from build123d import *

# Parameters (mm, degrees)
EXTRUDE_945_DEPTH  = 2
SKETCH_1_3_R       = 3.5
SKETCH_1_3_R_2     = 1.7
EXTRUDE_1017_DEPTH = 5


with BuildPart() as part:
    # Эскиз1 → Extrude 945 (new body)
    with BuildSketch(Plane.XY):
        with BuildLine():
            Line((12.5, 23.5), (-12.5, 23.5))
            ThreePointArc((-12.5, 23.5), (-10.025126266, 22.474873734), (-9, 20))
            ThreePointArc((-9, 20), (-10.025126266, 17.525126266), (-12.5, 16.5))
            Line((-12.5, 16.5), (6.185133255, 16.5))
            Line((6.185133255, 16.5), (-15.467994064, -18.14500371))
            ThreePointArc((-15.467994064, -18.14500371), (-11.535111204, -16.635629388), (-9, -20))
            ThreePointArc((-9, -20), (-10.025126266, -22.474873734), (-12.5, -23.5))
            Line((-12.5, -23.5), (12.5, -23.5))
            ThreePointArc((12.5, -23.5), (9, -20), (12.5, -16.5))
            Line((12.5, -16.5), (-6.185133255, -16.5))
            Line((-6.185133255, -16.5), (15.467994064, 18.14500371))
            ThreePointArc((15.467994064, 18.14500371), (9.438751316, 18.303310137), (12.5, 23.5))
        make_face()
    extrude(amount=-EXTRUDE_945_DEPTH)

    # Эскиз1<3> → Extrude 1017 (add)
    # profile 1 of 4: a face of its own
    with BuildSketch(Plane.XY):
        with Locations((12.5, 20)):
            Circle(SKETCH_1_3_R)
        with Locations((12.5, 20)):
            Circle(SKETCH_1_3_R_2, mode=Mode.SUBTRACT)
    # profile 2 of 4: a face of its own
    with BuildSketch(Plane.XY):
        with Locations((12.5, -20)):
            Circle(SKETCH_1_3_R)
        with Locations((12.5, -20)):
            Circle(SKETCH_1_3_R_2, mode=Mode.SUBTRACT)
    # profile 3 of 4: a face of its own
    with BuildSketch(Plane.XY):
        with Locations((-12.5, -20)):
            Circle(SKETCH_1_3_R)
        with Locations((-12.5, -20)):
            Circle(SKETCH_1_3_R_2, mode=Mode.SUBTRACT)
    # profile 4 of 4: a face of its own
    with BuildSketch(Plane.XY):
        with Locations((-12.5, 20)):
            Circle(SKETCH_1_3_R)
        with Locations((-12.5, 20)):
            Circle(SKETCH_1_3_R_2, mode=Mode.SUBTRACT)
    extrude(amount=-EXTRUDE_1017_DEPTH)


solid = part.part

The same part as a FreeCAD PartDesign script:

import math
import FreeCAD as App
import Part
import Sketcher

V = App.Vector
Q = App.Units.Quantity

doc = App.newDocument("Part")
body = doc.addObject("PartDesign::Body", "Body")

# Sketch on XY plane
sketch1 = body.newObject("Sketcher::SketchObject", "Sketch")
sketch1.AttachmentSupport = (doc.getObject("XY_Plane"), [""])
sketch1.MapMode = "FlatFace"
sketch1.addGeometry(Part.LineSegment(V(12.5, 23.5, 0), V(-12.5, 23.5, 0)), False)
sketch1.addGeometry(Part.ArcOfCircle(Part.Circle(V(-12.5, 20, 0), V(0, 0, 1), 3.5), math.radians(0), math.radians(90)), False)
sketch1.addGeometry(Part.ArcOfCircle(Part.Circle(V(-12.5, 20, 0), V(0, 0, 1), 3.5), math.radians(-90), math.radians(0)), False)
sketch1.addGeometry(Part.LineSegment(V(-12.5, 16.5, 0), V(6.2, 16.5, 0)), False)
sketch1.addGeometry(Part.LineSegment(V(6.2, 16.5, 0), V(-15.5, -18.1, 0)), False)
sketch1.addGeometry(Part.ArcOfCircle(Part.Circle(V(-12.5, -20, 0), V(0, 0, 1), 3.5), math.radians(0), math.radians(148)), False)
sketch1.addGeometry(Part.ArcOfCircle(Part.Circle(V(-12.5, -20, 0), V(0, 0, 1), 3.5), math.radians(-90), math.radians(0)), False)
sketch1.addGeometry(Part.LineSegment(V(-12.5, -23.5, 0), V(12.5, -23.5, 0)), False)
sketch1.addGeometry(Part.ArcOfCircle(Part.Circle(V(12.5, -20, 0), V(0, 0, 1), 3.5), math.radians(90), math.radians(270)), False)
sketch1.addGeometry(Part.LineSegment(V(12.5, -16.5, 0), V(-6.2, -16.5, 0)), False)
sketch1.addGeometry(Part.LineSegment(V(-6.2, -16.5, 0), V(15.5, 18.1, 0)), False)
sketch1.addGeometry(Part.ArcOfCircle(Part.Circle(V(12.5, 20, 0), V(0, 0, 1), 3.5), math.radians(90), math.radians(328)), False)
sketch1.addConstraint(Sketcher.Constraint("Tangent", 0, 2, 1, 2))
sketch1.addConstraint(Sketcher.Constraint("Tangent", 1, 1, 2, 2))
sketch1.addConstraint(Sketcher.Constraint("Tangent", 2, 1, 3, 1))
sketch1.addConstraint(Sketcher.Constraint("Coincident", 3, 2, 4, 1))
sketch1.addConstraint(Sketcher.Constraint("Tangent", 4, 2, 5, 2))
sketch1.addConstraint(Sketcher.Constraint("Tangent", 5, 1, 6, 2))
sketch1.addConstraint(Sketcher.Constraint("Tangent", 6, 1, 7, 1))
sketch1.addConstraint(Sketcher.Constraint("Tangent", 7, 2, 8, 2))
sketch1.addConstraint(Sketcher.Constraint("Tangent", 8, 1, 9, 1))
sketch1.addConstraint(Sketcher.Constraint("Coincident", 9, 2, 10, 1))
sketch1.addConstraint(Sketcher.Constraint("Tangent", 10, 2, 11, 2))
sketch1.addConstraint(Sketcher.Constraint("Tangent", 11, 1, 0, 1))
sketch1.addConstraint(Sketcher.Constraint("Horizontal", 0))
sketch1.addConstraint(Sketcher.Constraint("Horizontal", 3))
sketch1.addConstraint(Sketcher.Constraint("Horizontal", 7))
sketch1.addConstraint(Sketcher.Constraint("Horizontal", 9))
sketch1.addConstraint(Sketcher.Constraint("Equal", 1, 2))
sketch1.addConstraint(Sketcher.Constraint("Equal", 2, 5))
sketch1.addConstraint(Sketcher.Constraint("Equal", 5, 6))
sketch1.addConstraint(Sketcher.Constraint("Equal", 6, 8))
sketch1.addConstraint(Sketcher.Constraint("Equal", 8, 11))
sketch1.addConstraint(Sketcher.Constraint("Symmetric", 1, 3, 8, 3, -1, 1))
sketch1.addConstraint(Sketcher.Constraint("Symmetric", 4, 2, 10, 2, -1, 1))
sketch1.addConstraint(Sketcher.Constraint("Symmetric", 1, 1, 5, 1, -1))
sketch1.addConstraint(Sketcher.Constraint("Horizontal", 11, 3, 1, 1))
sketch1.addConstraint(Sketcher.Constraint("Radius", 1, Q("3.5 mm")))
sketch1.addConstraint(Sketcher.Constraint("DistanceX", 0, 2, 0, 1, Q("25 mm")))
sketch1.addConstraint(Sketcher.Constraint("DistanceY", -1, 1, 1, 3, Q("20 mm")))
sketch1.addConstraint(Sketcher.Constraint("Distance", 4, Q("40.855039 mm")))
pad1 = body.newObject("PartDesign::Pad", "Pad")
pad1.Profile = sketch1
pad1.Length = 2
pad1.Reversed = True

# Sketch on XY plane
sketch2 = body.newObject("Sketcher::SketchObject", "Sketch001")
sketch2.AttachmentSupport = (doc.getObject("XY_Plane"), [""])
sketch2.MapMode = "FlatFace"
sketch2.addGeometry(Part.Circle(V(12.5, 20, 0), V(0, 0, 1), 3.5), False)
sketch2.addGeometry(Part.Circle(V(12.5, 20, 0), V(0, 0, 1), 1.7), False)
sketch2.addGeometry(Part.Circle(V(12.5, -20, 0), V(0, 0, 1), 3.5), False)
sketch2.addGeometry(Part.Circle(V(12.5, -20, 0), V(0, 0, 1), 1.7), False)
sketch2.addGeometry(Part.Circle(V(-12.5, -20, 0), V(0, 0, 1), 3.5), False)
sketch2.addGeometry(Part.Circle(V(-12.5, -20, 0), V(0, 0, 1), 1.7), False)
sketch2.addGeometry(Part.Circle(V(-12.5, 20, 0), V(0, 0, 1), 3.5), False)
sketch2.addGeometry(Part.Circle(V(-12.5, 20, 0), V(0, 0, 1), 1.7), False)
sketch2.addConstraint(Sketcher.Constraint("Coincident", 1, 3, 0, 3))
sketch2.addConstraint(Sketcher.Constraint("Coincident", 3, 3, 2, 3))
sketch2.addConstraint(Sketcher.Constraint("Coincident", 5, 3, 4, 3))
sketch2.addConstraint(Sketcher.Constraint("Coincident", 7, 3, 6, 3))
sketch2.addConstraint(Sketcher.Constraint("Equal", 0, 2))
sketch2.addConstraint(Sketcher.Constraint("Equal", 1, 3))
sketch2.addConstraint(Sketcher.Constraint("Equal", 2, 4))
sketch2.addConstraint(Sketcher.Constraint("Equal", 3, 5))
sketch2.addConstraint(Sketcher.Constraint("Equal", 4, 6))
sketch2.addConstraint(Sketcher.Constraint("Equal", 5, 7))
sketch2.addConstraint(Sketcher.Constraint("Symmetric", 0, 3, 4, 3, -1, 1))
sketch2.addConstraint(Sketcher.Constraint("Symmetric", 2, 3, 6, 3, -1, 1))
sketch2.addConstraint(Sketcher.Constraint("Symmetric", 2, 3, 4, 3, -2))
sketch2.addConstraint(Sketcher.Constraint("Diameter", 0, Q("7 mm")))
sketch2.addConstraint(Sketcher.Constraint("Diameter", 1, Q("3.4 mm")))
sketch2.addConstraint(Sketcher.Constraint("DistanceY", -1, 1, 0, 3, Q("20 mm")))
sketch2.addConstraint(Sketcher.Constraint("DistanceX", 4, 3, 2, 3, Q("25 mm")))
pad2 = body.newObject("PartDesign::Pad", "Pad001")
pad2.Profile = sketch2
pad2.Length = 5
pad2.Reversed = True

doc.recompute()
